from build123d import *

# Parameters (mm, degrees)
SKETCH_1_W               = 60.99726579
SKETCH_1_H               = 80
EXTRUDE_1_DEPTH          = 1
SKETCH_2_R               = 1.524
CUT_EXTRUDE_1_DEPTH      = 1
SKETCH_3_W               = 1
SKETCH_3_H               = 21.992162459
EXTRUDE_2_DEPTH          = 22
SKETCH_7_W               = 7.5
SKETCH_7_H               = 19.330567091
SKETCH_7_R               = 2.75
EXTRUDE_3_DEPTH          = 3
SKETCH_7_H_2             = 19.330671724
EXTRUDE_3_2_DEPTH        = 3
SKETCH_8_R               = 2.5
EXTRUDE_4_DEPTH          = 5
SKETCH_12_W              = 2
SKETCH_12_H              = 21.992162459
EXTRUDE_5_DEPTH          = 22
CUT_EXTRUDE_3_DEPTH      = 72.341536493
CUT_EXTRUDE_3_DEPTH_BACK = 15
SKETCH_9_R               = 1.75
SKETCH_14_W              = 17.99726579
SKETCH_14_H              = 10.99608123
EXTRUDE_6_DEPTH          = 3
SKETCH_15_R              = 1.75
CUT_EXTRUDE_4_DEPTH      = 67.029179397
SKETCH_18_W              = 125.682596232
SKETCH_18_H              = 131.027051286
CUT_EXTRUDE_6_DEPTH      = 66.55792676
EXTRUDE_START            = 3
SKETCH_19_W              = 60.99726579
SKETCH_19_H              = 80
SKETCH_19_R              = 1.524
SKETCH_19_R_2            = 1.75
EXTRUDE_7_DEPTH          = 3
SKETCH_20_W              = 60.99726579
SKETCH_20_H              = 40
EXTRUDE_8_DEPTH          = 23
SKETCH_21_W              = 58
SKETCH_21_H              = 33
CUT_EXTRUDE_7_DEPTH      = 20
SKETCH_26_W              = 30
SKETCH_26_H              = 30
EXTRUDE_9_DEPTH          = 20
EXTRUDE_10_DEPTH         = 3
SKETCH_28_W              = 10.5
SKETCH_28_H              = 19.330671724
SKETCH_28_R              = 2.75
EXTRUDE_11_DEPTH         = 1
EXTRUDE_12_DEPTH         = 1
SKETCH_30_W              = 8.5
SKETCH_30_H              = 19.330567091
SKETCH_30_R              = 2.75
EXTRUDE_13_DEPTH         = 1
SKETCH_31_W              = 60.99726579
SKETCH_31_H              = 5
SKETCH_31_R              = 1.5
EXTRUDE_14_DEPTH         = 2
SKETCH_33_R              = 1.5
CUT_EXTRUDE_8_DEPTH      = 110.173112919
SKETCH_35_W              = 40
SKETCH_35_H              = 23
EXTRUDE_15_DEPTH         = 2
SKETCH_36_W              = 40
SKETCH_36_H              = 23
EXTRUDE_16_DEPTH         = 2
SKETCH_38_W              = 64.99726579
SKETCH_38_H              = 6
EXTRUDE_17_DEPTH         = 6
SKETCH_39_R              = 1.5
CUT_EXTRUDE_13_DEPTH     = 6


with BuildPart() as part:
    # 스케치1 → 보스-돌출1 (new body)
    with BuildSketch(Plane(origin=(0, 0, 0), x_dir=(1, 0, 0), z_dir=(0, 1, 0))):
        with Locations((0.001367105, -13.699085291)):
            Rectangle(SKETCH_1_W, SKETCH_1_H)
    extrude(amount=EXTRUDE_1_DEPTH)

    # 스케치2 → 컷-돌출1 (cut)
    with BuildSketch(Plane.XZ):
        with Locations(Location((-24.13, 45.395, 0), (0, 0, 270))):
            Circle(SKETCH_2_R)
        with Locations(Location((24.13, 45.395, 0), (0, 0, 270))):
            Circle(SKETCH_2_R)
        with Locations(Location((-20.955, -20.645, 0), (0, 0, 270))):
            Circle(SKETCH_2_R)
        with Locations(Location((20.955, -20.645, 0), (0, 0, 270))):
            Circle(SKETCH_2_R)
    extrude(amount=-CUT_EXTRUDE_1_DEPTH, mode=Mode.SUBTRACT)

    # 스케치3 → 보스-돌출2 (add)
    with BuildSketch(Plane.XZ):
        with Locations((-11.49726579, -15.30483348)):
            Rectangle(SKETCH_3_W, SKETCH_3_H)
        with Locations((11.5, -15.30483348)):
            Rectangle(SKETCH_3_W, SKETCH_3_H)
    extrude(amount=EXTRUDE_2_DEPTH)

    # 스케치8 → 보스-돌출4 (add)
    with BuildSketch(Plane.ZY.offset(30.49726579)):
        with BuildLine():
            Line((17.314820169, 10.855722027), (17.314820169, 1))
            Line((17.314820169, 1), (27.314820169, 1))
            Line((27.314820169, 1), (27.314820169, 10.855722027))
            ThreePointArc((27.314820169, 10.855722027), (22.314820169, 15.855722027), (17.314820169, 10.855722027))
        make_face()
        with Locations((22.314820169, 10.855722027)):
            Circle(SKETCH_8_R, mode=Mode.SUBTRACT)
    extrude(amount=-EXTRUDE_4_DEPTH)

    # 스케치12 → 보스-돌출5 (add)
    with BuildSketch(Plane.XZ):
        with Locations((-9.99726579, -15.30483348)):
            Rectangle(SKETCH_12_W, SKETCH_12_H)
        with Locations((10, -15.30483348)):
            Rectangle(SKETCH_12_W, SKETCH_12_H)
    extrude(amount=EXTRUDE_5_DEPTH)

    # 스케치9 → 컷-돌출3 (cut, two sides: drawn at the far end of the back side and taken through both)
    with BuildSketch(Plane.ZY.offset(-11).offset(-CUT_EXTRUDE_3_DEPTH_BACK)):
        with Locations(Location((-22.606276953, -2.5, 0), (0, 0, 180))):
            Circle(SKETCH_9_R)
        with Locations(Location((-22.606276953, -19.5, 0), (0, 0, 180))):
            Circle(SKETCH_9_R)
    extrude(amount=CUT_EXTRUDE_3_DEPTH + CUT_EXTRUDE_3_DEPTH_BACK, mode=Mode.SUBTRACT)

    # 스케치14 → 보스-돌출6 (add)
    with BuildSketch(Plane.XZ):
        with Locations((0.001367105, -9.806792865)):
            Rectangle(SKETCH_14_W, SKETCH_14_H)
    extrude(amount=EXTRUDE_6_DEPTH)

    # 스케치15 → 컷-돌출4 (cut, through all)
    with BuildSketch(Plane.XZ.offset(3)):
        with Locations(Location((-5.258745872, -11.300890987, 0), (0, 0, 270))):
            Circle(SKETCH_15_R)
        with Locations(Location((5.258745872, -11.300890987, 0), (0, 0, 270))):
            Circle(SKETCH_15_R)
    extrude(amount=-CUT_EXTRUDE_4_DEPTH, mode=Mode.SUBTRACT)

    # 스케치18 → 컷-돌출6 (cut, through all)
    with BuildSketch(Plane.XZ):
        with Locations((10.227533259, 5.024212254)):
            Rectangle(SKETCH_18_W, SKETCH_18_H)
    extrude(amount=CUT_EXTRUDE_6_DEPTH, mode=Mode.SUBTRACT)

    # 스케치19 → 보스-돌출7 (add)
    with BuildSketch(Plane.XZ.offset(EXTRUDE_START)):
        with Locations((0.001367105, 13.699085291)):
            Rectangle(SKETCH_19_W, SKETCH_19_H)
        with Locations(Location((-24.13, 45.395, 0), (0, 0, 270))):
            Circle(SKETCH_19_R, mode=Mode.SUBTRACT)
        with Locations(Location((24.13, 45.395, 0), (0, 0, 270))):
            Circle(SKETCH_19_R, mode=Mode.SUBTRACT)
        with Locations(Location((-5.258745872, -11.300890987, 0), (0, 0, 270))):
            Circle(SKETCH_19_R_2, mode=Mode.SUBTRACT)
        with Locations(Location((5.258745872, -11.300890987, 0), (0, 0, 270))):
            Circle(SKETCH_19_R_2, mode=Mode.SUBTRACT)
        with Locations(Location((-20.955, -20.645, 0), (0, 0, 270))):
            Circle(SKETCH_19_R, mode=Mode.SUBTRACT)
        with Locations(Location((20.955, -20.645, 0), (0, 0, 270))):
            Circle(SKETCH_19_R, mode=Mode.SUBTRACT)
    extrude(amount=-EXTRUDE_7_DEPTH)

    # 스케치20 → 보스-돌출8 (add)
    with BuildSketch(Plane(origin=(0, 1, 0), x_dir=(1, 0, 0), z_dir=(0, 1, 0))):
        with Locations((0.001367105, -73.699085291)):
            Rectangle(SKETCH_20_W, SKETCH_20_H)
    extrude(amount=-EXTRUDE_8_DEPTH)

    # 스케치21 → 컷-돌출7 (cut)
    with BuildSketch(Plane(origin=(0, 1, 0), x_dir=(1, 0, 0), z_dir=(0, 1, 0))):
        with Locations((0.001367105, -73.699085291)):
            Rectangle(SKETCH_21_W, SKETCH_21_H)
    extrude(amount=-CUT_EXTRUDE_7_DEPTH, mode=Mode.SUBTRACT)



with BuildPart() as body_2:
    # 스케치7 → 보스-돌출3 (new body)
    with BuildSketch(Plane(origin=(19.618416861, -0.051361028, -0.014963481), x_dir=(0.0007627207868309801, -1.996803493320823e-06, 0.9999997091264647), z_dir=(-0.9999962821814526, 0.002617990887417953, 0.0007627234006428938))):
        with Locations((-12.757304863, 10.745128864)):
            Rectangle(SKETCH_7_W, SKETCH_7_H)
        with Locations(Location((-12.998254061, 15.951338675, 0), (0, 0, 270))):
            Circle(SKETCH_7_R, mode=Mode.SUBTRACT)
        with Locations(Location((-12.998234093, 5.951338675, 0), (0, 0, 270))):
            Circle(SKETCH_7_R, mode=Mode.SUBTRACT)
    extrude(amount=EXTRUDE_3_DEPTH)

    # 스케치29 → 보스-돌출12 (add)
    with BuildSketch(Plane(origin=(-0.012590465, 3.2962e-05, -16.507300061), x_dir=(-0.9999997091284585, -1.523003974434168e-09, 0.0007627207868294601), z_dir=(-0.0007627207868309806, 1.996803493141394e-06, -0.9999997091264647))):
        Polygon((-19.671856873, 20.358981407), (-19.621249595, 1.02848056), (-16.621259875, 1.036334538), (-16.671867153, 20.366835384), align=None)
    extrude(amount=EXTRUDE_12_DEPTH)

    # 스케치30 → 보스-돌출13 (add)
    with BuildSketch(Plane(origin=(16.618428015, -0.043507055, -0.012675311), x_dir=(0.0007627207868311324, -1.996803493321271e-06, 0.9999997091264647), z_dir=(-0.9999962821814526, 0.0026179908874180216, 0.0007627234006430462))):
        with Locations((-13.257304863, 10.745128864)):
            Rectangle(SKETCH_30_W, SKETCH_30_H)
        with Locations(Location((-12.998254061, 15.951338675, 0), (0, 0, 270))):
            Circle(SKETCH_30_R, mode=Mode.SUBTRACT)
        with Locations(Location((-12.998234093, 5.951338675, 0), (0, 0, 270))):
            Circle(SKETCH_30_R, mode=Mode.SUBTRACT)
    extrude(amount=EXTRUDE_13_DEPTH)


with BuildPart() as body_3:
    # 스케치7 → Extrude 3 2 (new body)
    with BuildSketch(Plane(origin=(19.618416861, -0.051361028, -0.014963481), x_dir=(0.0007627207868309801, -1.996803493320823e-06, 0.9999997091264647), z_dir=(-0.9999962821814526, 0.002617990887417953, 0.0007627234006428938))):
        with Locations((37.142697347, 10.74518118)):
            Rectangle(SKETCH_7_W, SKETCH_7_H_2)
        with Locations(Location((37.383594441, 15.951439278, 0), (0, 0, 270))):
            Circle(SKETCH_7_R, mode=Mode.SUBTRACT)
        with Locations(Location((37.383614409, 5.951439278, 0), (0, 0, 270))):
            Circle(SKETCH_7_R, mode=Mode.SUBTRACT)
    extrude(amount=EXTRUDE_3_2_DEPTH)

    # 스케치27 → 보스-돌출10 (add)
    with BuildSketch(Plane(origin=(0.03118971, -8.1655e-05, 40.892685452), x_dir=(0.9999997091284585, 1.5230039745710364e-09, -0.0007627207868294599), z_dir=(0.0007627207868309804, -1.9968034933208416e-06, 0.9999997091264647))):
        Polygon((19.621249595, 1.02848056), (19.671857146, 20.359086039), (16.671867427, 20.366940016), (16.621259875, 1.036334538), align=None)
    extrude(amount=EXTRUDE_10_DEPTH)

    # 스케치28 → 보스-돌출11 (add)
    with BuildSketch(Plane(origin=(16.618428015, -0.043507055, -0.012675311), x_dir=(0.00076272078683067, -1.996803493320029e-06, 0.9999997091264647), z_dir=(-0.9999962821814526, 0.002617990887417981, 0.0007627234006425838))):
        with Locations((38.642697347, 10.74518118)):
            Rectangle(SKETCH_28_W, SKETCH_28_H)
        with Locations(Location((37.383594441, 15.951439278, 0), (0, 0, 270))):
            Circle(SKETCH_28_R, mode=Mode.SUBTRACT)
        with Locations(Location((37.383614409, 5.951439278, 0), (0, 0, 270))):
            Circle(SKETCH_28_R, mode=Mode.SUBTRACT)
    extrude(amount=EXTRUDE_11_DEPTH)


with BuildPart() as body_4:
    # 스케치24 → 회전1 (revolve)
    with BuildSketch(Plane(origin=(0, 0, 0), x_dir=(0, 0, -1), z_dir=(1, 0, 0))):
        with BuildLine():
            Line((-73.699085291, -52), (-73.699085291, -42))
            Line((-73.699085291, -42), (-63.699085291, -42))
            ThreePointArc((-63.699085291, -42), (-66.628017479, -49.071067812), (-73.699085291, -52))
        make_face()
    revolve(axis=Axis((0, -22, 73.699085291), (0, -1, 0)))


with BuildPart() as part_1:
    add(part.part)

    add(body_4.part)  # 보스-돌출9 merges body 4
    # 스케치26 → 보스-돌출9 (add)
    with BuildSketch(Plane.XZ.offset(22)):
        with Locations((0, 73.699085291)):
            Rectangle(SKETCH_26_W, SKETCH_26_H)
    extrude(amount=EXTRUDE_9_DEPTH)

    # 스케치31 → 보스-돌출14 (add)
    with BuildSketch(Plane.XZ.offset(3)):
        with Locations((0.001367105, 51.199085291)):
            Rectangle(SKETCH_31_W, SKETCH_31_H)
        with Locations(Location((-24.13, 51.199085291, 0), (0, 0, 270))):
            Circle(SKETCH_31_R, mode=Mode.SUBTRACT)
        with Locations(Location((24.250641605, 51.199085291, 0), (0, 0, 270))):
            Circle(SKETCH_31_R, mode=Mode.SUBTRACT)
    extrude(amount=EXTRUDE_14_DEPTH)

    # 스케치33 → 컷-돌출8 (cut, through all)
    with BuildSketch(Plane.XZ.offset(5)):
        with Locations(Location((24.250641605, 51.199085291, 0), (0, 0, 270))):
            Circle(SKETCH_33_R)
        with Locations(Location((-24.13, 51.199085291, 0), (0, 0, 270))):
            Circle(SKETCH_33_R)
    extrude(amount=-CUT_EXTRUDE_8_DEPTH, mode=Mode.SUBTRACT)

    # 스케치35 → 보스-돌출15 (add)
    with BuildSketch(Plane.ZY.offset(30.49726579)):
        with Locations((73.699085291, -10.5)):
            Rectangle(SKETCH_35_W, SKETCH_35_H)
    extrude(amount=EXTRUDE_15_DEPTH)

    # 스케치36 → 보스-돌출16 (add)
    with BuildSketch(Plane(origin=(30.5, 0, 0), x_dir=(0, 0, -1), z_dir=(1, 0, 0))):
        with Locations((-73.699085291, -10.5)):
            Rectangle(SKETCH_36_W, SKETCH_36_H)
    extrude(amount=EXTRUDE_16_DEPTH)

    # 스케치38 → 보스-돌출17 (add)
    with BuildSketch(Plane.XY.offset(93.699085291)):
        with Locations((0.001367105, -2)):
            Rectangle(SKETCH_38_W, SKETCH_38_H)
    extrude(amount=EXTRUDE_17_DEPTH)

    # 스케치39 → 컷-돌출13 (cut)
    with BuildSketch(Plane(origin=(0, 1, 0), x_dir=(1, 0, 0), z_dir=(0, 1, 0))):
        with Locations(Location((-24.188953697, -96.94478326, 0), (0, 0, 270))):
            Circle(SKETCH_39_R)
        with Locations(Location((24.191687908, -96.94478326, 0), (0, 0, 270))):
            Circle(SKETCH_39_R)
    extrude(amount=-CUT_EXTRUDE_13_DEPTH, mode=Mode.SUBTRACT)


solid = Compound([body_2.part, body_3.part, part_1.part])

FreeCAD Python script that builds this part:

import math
import FreeCAD as App
import Part
import Sketcher
from FreeCAD import Vector
Q = App.Units.Quantity


def add_polygon(sketch, points):
    """Adds a closed chain of lines whose ends are joined by coincident constraints."""
    first, n = sketch.GeometryCount, len(points)
    for a, b in zip(points, points[1:] + points[:1]):
        sketch.addGeometry(Part.LineSegment(App.Vector(*a, 0), App.Vector(*b, 0)), False)
    for i in range(n):
        sketch.addConstraint(Sketcher.Constraint("Coincident", first + i, 2, first + (i + 1) % n, 1))

doc = App.newDocument("Part")
body = doc.addObject("PartDesign::Body", "Body")

# Sketch on XZ plane
sketch1 = doc.addObject("Sketcher::SketchObject", "Sketch")
body.addObject(sketch1)
sketch1.AttachmentSupport = (doc.XZ_Plane, [""])
sketch1.MapMode = "FlatFace"
add_polygon(sketch1, [(-30, -26), (-30, 54), (30, 54), (30, -26)])  # lines 0-3
sketch1.addConstraint([
    Sketcher.Constraint("Vertical", 0),
    Sketcher.Constraint("Horizontal", 1),
    Sketcher.Constraint("Vertical", 2),
    Sketcher.Constraint("Horizontal", 3),
    Sketcher.Constraint("DistanceY", 0, 1, 0, 2, 80.0),
    Sketcher.Constraint("DistanceX", -1, 1, 1, 2, 30.5),
    Sketcher.Constraint("DistanceX", 1, 1, 1, 2, 60.997266),
    Sketcher.Constraint("DistanceY", -1, 1, 0, 2, 53.699085),
])
pad1 = doc.addObject("PartDesign::Pad", "Pad")
body.addObject(pad1)
pad1.Profile = sketch1
pad1.Length = 1
pad1.Reversed = True

# Sketch on XZ plane
sketch2 = doc.addObject("Sketcher::SketchObject", "Sketch001")
body.addObject(sketch2)
sketch2.AttachmentSupport = (doc.XZ_Plane, [""])
sketch2.MapMode = "FlatFace"
sketch2.addGeometry([
    Part.Circle(Vector(-24.1, 45.4, 0), Vector(0, 0, 1), 1.5),
    Part.Circle(Vector(24.1, 45.4, 0), Vector(0, 0, 1), 1.5),
    Part.Circle(Vector(-21, -20.6, 0), Vector(0, 0, 1), 1.5),
    Part.Circle(Vector(21, -20.6, 0), Vector(0, 0, 1), 1.5),
], False)
sketch2.addConstraint([
    Sketcher.Constraint("Equal", 0, 1),
    Sketcher.Constraint("Equal", 1, 2),
    Sketcher.Constraint("Equal", 2, 3),
    Sketcher.Constraint("Symmetric", 0, 3, 1, 3, -2),
    Sketcher.Constraint("Symmetric", 2, 3, 3, 3, -2),
    Sketcher.Constraint("Diameter", 0, 3.048),
    Sketcher.Constraint("DistanceX", 0, 3, -1, 1, 24.13),
    Sketcher.Constraint("DistanceY", 2, 3, 0, 3, 66.04),
    Sketcher.Constraint("DistanceX", 2, 3, 3, 3, 41.91),
    Sketcher.Constraint("DistanceY", -1, 1, 0, 3, 45.395),
])
pocket1 = doc.addObject("PartDesign::Pocket", "Pocket")
body.addObject(pocket1)
pocket1.Profile = sketch2
pocket1.Length = 1

# Sketch on XZ plane
sketch3 = doc.addObject("Sketcher::SketchObject", "Sketch002")
body.addObject(sketch3)
sketch3.AttachmentSupport = (doc.XZ_Plane, [""])
sketch3.MapMode = "FlatFace"
add_polygon(sketch3, [(-12, -4.3), (-12, -26.3), (-11, -26.3), (-11, -4.3)])  # lines 0-3
add_polygon(sketch3, [(11, -4.3), (11, -26.3), (12, -26.3), (12, -4.3)])  # lines 4-7
sketch3.addConstraint([
    Sketcher.Constraint("Vertical", 0),
    Sketcher.Constraint("Horizontal", 1),
    Sketcher.Constraint("Vertical", 2),
    Sketcher.Constraint("Horizontal", 3),
    Sketcher.Constraint("Vertical", 4),
    Sketcher.Constraint("Horizontal", 5),
    Sketcher.Constraint("Vertical", 6),
    Sketcher.Constraint("Horizontal", 7),
    Sketcher.Constraint("Horizontal", 1, 2, 4, 2),
    Sketcher.Constraint("Horizontal", 3, 2, 6, 2),
    Sketcher.Constraint("Equal", 3, 5),
    Sketcher.Constraint("DistanceX", 1, 1, 1, 2, 1.0),
    Sketcher.Constraint("DistanceX", -1, 1, 4, 2, 11.0),
    Sketcher.Constraint("DistanceY", 0, 2, 0, 1, 21.992162),
    Sketcher.Constraint("DistanceX", 0, 2, -1, 1, 11.997266),
    Sketcher.Constraint("DistanceY", 0, 2, -1, 1, 26.300915),
])
pad2 = doc.addObject("PartDesign::Pad", "Pad001")
body.addObject(pad2)
pad2.Profile = sketch3
pad2.Length = 22

# Sketch on YZ plane
sketch4 = doc.addObject("Sketcher::SketchObject", "Sketch003")
body.addObject(sketch4)
sketch4.AttachmentSupport = (doc.YZ_Plane, [""])
sketch4.MapMode = "FlatFace"
sketch4.AttachmentOffset = App.Placement(Vector(0, 0, -30.497266), App.Rotation())
sketch4.addGeometry([
    Part.LineSegment(Vector(10.9, 17.3, 0), Vector(1, 17.3, 0)),  # 0
    Part.LineSegment(Vector(1, 17.3, 0), Vector(1, 27.3, 0)),  # 1
    Part.LineSegment(Vector(1, 27.3, 0), Vector(10.9, 27.3, 0)),  # 2
    Part.ArcOfCircle(Part.Circle(Vector(10.9, 22.3, 0), Vector(0, 0, 1), 5), math.radians(-90), math.radians(90)),  # 3
    Part.Circle(Vector(10.9, 22.3, 0), Vector(0, 0, 1), 2.5),  # 4
], False)
sketch4.addConstraint([
    Sketcher.Constraint("Coincident", 0, 2, 1, 1),
    Sketcher.Constraint("Coincident", 1, 2, 2, 1),
    Sketcher.Constraint("Tangent", 2, 2, 3, 2),
    Sketcher.Constraint("Tangent", 3, 1, 0, 1),
    Sketcher.Constraint("Horizontal", 0),
    Sketcher.Constraint("Vertical", 1),
    Sketcher.Constraint("Horizontal", 2),
    Sketcher.Constraint("Coincident", 4, 3, 3, 3),
    Sketcher.Constraint("Diameter", 4, 5.0),
    Sketcher.Constraint("Radius", 3, 5.0),
    Sketcher.Constraint("DistanceX", -1, 1, 0, 2, 1.0),
    Sketcher.Constraint("DistanceX", 0, 2, 0, 1, 9.855722),
    Sketcher.Constraint("DistanceY", -1, 1, 3, 3, 22.31482),
])
pad3 = doc.addObject("PartDesign::Pad", "Pad002")
body.addObject(pad3)
pad3.Profile = sketch4
pad3.Length = 5

# Sketch on XZ plane
sketch5 = doc.addObject("Sketcher::SketchObject", "Sketch004")
body.addObject(sketch5)
sketch5.AttachmentSupport = (doc.XZ_Plane, [""])
sketch5.MapMode = "FlatFace"
add_polygon(sketch5, [(-11, -4.3), (-11, -26.3), (-9, -26.3), (-9, -4.3)])  # lines 0-3
add_polygon(sketch5, [(9, -4.3), (9, -26.3), (11, -26.3), (11, -4.3)])  # lines 4-7
sketch5.addConstraint([
    Sketcher.Constraint("Vertical", 0),
    Sketcher.Constraint("Horizontal", 1),
    Sketcher.Constraint("Vertical", 2),
    Sketcher.Constraint("Horizontal", 3),
    Sketcher.Constraint("Vertical", 4),
    Sketcher.Constraint("Horizontal", 5),
    Sketcher.Constraint("Vertical", 6),
    Sketcher.Constraint("Horizontal", 7),
    Sketcher.Constraint("Horizontal", 1, 2, 4, 2),
    Sketcher.Constraint("Horizontal", 3, 2, 6, 2),
    Sketcher.Constraint("Equal", 3, 5),
    Sketcher.Constraint("DistanceX", 1, 1, 1, 2, 2.0),
    Sketcher.Constraint("DistanceX", -1, 1, 4, 2, 9.0),
    Sketcher.Constraint("DistanceY", 0, 2, 0, 1, 21.992162),
    Sketcher.Constraint("DistanceX", 0, 2, -1, 1, 10.997266),
    Sketcher.Constraint("DistanceY", 0, 2, -1, 1, 26.300915),
])
pad4 = doc.addObject("PartDesign::Pad", "Pad003")
body.addObject(pad4)
pad4.Profile = sketch5
pad4.Length = 22

# Sketch on YZ plane
sketch6 = doc.addObject("Sketcher::SketchObject", "Sketch005")
body.addObject(sketch6)
sketch6.AttachmentSupport = (doc.YZ_Plane, [""])
sketch6.MapMode = "FlatFace"
sketch6.AttachmentOffset = App.Placement(Vector(0, 0, 11), App.Rotation())
sketch6.addGeometry([
    Part.Circle(Vector(-2.5, -22.6, 0), Vector(0, 0, 1), 1.8),
    Part.Circle(Vector(-19.5, -22.6, 0), Vector(0, 0, 1), 1.8),
], False)
sketch6.addConstraint([
    Sketcher.Constraint("Equal", 0, 1),
    Sketcher.Constraint("Horizontal", 0, 3, 1, 3),
    Sketcher.Constraint("Diameter", 0, 3.5),
    Sketcher.Constraint("DistanceX", 1, 3, 0, 3, 17.0),
    Sketcher.Constraint("DistanceX", 0, 3, -1, 1, 2.5),
    Sketcher.Constraint("DistanceY", 0, 3, -1, 1, 22.606277),
])
pocket2 = doc.addObject("PartDesign::Pocket", "Pocket001")
body.addObject(pocket2)
pocket2.Profile = sketch6
pocket2.Type = "ThroughAll"
pocket2.Midplane = True

# Sketch on XZ plane
sketch7 = doc.addObject("Sketcher::SketchObject", "Sketch006")
body.addObject(sketch7)
sketch7.AttachmentSupport = (doc.XZ_Plane, [""])
sketch7.MapMode = "FlatFace"
add_polygon(sketch7, [(-9, -4), (-9, -15), (9, -15), (9, -4)])  # lines 0-3
sketch7.addConstraint([
    Sketcher.Constraint("Vertical", 0),
    Sketcher.Constraint("Horizontal", 1),
    Sketcher.Constraint("Vertical", 2),
    Sketcher.Constraint("Horizontal", 3),
    Sketcher.Constraint("DistanceX", -1, 1, 1, 2, 9.0),
    Sketcher.Constraint("DistanceY", 0, 2, 0, 1, 10.996081),
    Sketcher.Constraint("DistanceX", 1, 1, 1, 2, 17.997266),
    Sketcher.Constraint("DistanceY", 0, 2, -1, 1, 15.304833),
])
pad5 = doc.addObject("PartDesign::Pad", "Pad004")
body.addObject(pad5)
pad5.Profile = sketch7
pad5.Length = 3

# Sketch on XZ plane
sketch8 = doc.addObject("Sketcher::SketchObject", "Sketch007")
body.addObject(sketch8)
sketch8.AttachmentSupport = (doc.XZ_Plane, [""])
sketch8.MapMode = "FlatFace"
sketch8.AttachmentOffset = App.Placement(Vector(0, 0, 3), App.Rotation())
sketch8.addGeometry([
    Part.Circle(Vector(-5.3, -11.3, 0), Vector(0, 0, 1), 1.8),
    Part.Circle(Vector(5.3, -11.3, 0), Vector(0, 0, 1), 1.8),
], False)
sketch8.addConstraint([
    Sketcher.Constraint("Equal", 0, 1),
    Sketcher.Constraint("Symmetric", 0, 3, 1, 3, -2),
    Sketcher.Constraint("Diameter", 0, 3.5),
    Sketcher.Constraint("DistanceY", 0, 3, -1, 1, 11.300891),
    Sketcher.Constraint("DistanceX", 0, 3, 1, 3, 10.517492),
])
pocket3 = doc.addObject("PartDesign::Pocket", "Pocket002")
body.addObject(pocket3)
pocket3.Profile = sketch8
pocket3.Type = "ThroughAll"

# Sketch on XZ plane
sketch9 = doc.addObject("Sketcher::SketchObject", "Sketch008")
body.addObject(sketch9)
sketch9.AttachmentSupport = (doc.XZ_Plane, [""])
sketch9.MapMode = "FlatFace"
add_polygon(sketch9, [(-53, 71), (-53, -60), (73, -60), (73, 71)])  # lines 0-3
sketch9.addConstraint([
    Sketcher.Constraint("Vertical", 0),
    Sketcher.Constraint("Horizontal", 1),
    Sketcher.Constraint("Vertical", 2),
    Sketcher.Constraint("Horizontal", 3),
    Sketcher.Constraint("DistanceY", 0, 2, 0, 1, 131.027051),
    Sketcher.Constraint("DistanceX", 1, 1, 1, 2, 125.682596),
    Sketcher.Constraint("DistanceX", -1, 1, 1, 2, 73.068831),
    Sketcher.Constraint("DistanceY", 0, 2, -1, 1, 60.489313),
])
pocket4 = doc.addObject("PartDesign::Pocket", "Pocket003")
body.addObject(pocket4)
pocket4.Profile = sketch9
pocket4.Type = "ThroughAll"
pocket4.Reversed = True

# Sketch on XZ plane
sketch10 = doc.addObject("Sketcher::SketchObject", "Sketch009")
body.addObject(sketch10)
sketch10.AttachmentSupport = (doc.XZ_Plane, [""])
sketch10.MapMode = "FlatFace"
sketch10.AttachmentOffset = App.Placement(Vector(0, 0, 3), App.Rotation())
add_polygon(sketch10, [(-30.5, 53.7), (-30.5, -26.3), (30.5, -26.3), (30.5, 53.7)])  # lines 0-3
sketch10.addGeometry(Part.Circle(Vector(-21, -20.6, 0), Vector(0, 0, 1), 1.5), False)  # 4
sketch10.addGeometry(Part.Circle(Vector(-5.3, -11.3, 0), Vector(0, 0, 1), 1.8), False)  # 5
sketch10.addGeometry(Part.Circle(Vector(5.3, -11.3, 0), Vector(0, 0, 1), 1.8), False)  # 6
sketch10.addGeometry(Part.Circle(Vector(21, -20.6, 0), Vector(0, 0, 1), 1.5), False)  # 7
sketch10.addGeometry(Part.Circle(Vector(-24.1, 45.4, 0), Vector(0, 0, 1), 1.5), False)  # 8
sketch10.addGeometry(Part.Circle(Vector(24.1, 45.4, 0), Vector(0, 0, 1), 1.5), False)  # 9
sketch10.addConstraint([
    Sketcher.Constraint("Vertical", 0),
    Sketcher.Constraint("Horizontal", 1),
    Sketcher.Constraint("Vertical", 2),
    Sketcher.Constraint("Horizontal", 3),
    Sketcher.Constraint("Equal", 5, 6),
    Sketcher.Constraint("Equal", 4, 7),
    Sketcher.Constraint("Equal", 7, 8),
    Sketcher.Constraint("Equal", 8, 9),
    Sketcher.Constraint("Symmetric", 5, 3, 6, 3, -2),
    Sketcher.Constraint("Symmetric", 4, 3, 7, 3, -2),
    Sketcher.Constraint("Symmetric", 8, 3, 9, 3, -2),
    Sketcher.Constraint("Diameter", 5, 3.5),
    Sketcher.Constraint("DistanceY", 0, 2, 0, 1, 80.0),
    Sketcher.Constraint("Diameter", 4, 3.048),
    Sketcher.Constraint("DistanceX", -1, 1, 1, 2, 30.5),
    Sketcher.Constraint("DistanceX", 8, 3, -1, 1, 24.13),
    Sketcher.Constraint("DistanceX", 4, 3, 7, 3, 41.91),
    Sketcher.Constraint("DistanceY", 4, 3, 8, 3, 66.04),
    Sketcher.Constraint("DistanceY", 4, 3, -1, 1, 20.645),
    Sketcher.Constraint("DistanceX", 1, 1, 1, 2, 60.997266),
    Sketcher.Constraint("DistanceY", 5, 3, -1, 1, 11.300891),
    Sketcher.Constraint("DistanceX", 5, 3, 6, 3, 10.517492),
    Sketcher.Constraint("DistanceY", 0, 2, -1, 1, 26.300915),
])
pad6 = doc.addObject("PartDesign::Pad", "Pad005")
body.addObject(pad6)
pad6.Profile = sketch10
pad6.Length = 3
pad6.Reversed = True

# Sketch on XZ plane
sketch11 = doc.addObject("Sketcher::SketchObject", "Sketch010")
body.addObject(sketch11)
sketch11.AttachmentSupport = (doc.XZ_Plane, [""])
sketch11.MapMode = "FlatFace"
sketch11.AttachmentOffset = App.Placement(Vector(0, 0, -1), App.Rotation())
add_polygon(sketch11, [(-30, 54), (-30, 94), (30, 94), (30, 54)])  # lines 0-3
sketch11.addConstraint([
    Sketcher.Constraint("Vertical", 0),
    Sketcher.Constraint("Horizontal", 1),
    Sketcher.Constraint("Vertical", 2),
    Sketcher.Constraint("Horizontal", 3),
    Sketcher.Constraint("DistanceY", 0, 1, 0, 2, 40.0),
    Sketcher.Constraint("DistanceX", -1, 1, 1, 2, 30.5),
    Sketcher.Constraint("DistanceX", 1, 1, 1, 2, 60.997266),
    Sketcher.Constraint("DistanceY", -1, 1, 0, 2, 93.699085),
])
pad7 = doc.addObject("PartDesign::Pad", "Pad006")
body.addObject(pad7)
pad7.Profile = sketch11
pad7.Length = 23

# Sketch on XZ plane
sketch12 = doc.addObject("Sketcher::SketchObject", "Sketch011")
body.addObject(sketch12)
sketch12.AttachmentSupport = (doc.XZ_Plane, [""])
sketch12.MapMode = "FlatFace"
sketch12.AttachmentOffset = App.Placement(Vector(0, 0, -1), App.Rotation())
add_polygon(sketch12, [(-29, 57), (-29, 90), (29, 90), (29, 57)])  # lines 0-3
sketch12.addConstraint([
    Sketcher.Constraint("Vertical", 0),
    Sketcher.Constraint("Horizontal", 1),
    Sketcher.Constraint("Vertical", 2),
    Sketcher.Constraint("Horizontal", 3),
    Sketcher.Constraint("DistanceX", 1, 1, 1, 2, 58.0),
    Sketcher.Constraint("DistanceY", 0, 1, 0, 2, 33.0),
    Sketcher.Constraint("DistanceX", 0, 2, -1, 1, 28.998633),
    Sketcher.Constraint("DistanceY", -1, 1, 0, 2, 90.199085),
])
pocket5 = doc.addObject("PartDesign::Pocket", "Pocket004")
body.addObject(pocket5)
pocket5.Profile = sketch12
pocket5.Length = 20
pocket5.Reversed = True
body2 = doc.addObject("PartDesign::Body", "Body001")

# Sketch on an angled plane
sketch13 = doc.addObject("Sketcher::SketchObject", "Sketch012")
body2.addObject(sketch13)
sketch13.Placement = App.Placement(Vector(19.618417, -0.051361, -0.014963), App.Rotation(Vector(0.000762721, -0.000001997, 0.999999709), Vector(0.002617992, 0.999996573, 0), Vector(-0.999996282, 0.002617991, 0.000762723), "ZXY"))
add_polygon(sketch13, [(-16.5, 20.4), (-16.5, 1.1), (-9, 1.1), (-9, 20.4)])  # lines 0-3
sketch13.addGeometry(Part.Circle(Vector(-13, 6, 0), Vector(0, 0, 1), 2.8), False)  # 4
sketch13.addGeometry(Part.Circle(Vector(-13, 16, 0), Vector(0, 0, 1), 2.8), False)  # 5
sketch13.addConstraint([
    Sketcher.Constraint("Vertical", 0),
    Sketcher.Constraint("Horizontal", 1),
    Sketcher.Constraint("Vertical", 2),
    Sketcher.Constraint("Horizontal", 3),
    Sketcher.Constraint("Equal", 4, 5),
    Sketcher.Constraint("Diameter", 4, 5.5),
    Sketcher.Constraint("DistanceX", 1, 1, 1, 2, 7.5),
    Sketcher.Constraint("DistanceY", 4, 3, 5, 3, 10.0),
    Sketcher.Constraint("DistanceY", 0, 2, 0, 1, 19.330567),
    Sketcher.Constraint("DistanceY", -1, 1, 4, 3, 5.951339),
    Sketcher.Constraint("DistanceX", 0, 2, 4, 3, 3.509071),
    Sketcher.Constraint("DistanceX", 0, 2, 5, 3, 3.509051),
    Sketcher.Constraint("DistanceX", 4, 3, -1, 1, 12.998234),
    Sketcher.Constraint("DistanceY", -1, 1, 0, 2, 1.079845),
])
pad8 = doc.addObject("PartDesign::Pad", "Pad007")
body2.addObject(pad8)
pad8.Profile = sketch13
pad8.Length = 3

# Sketch on an angled plane
sketch14 = doc.addObject("Sketcher::SketchObject", "Sketch013")
body2.addObject(sketch14)
sketch14.Placement = App.Placement(Vector(-0.01259, 0.000033, -16.5073), App.Rotation(Vector(-0.999999709, -0.000000002, 0.000762721), Vector(0, 1, 0.000001997), Vector(-0.000762721, 0.000001997, -0.999999709), "ZXY"))
add_polygon(sketch14, [(-19.7, 20.4), (-19.6, 1), (-16.6, 1), (-16.7, 20.4)])  # lines 0-3
sketch14.addConstraint([
    Sketcher.Constraint("Perpendicular", 0, 1),
    Sketcher.Constraint("Perpendicular", 1, 2),
    Sketcher.Constraint("Perpendicular", 2, 3),
    Sketcher.Constraint("Distance", 1, 3.0),
    Sketcher.Constraint("Angle", 0, Q("-89.85 deg")),
    Sketcher.Constraint("DistanceY", 1, 2, 2, 2, 19.330501),
    Sketcher.Constraint("DistanceX", 0, 2, -1, 1, 19.62125),
    Sketcher.Constraint("DistanceY", -1, 1, 0, 2, 1.028481),
])
pad9 = doc.addObject("PartDesign::Pad", "Pad008")
body2.addObject(pad9)
pad9.Profile = sketch14
pad9.Length = 1

# Sketch on an angled plane
sketch15 = doc.addObject("Sketcher::SketchObject", "Sketch014")
body2.addObject(sketch15)
sketch15.Placement = App.Placement(Vector(16.618428, -0.043507, -0.012675), App.Rotation(Vector(0.000762721, -0.000001997, 0.999999709), Vector(0.002617992, 0.999996573, 0), Vector(-0.999996282, 0.002617991, 0.000762723), "ZXY"))
add_polygon(sketch15, [(-17.5, 20.4), (-17.5, 1.1), (-9, 1.1), (-9, 20.4)])  # lines 0-3
sketch15.addGeometry(Part.Circle(Vector(-13, 6, 0), Vector(0, 0, 1), 2.8), False)  # 4
sketch15.addGeometry(Part.Circle(Vector(-13, 16, 0), Vector(0, 0, 1), 2.8), False)  # 5
sketch15.addConstraint([
    Sketcher.Constraint("Vertical", 0),
    Sketcher.Constraint("Horizontal", 1),
    Sketcher.Constraint("Vertical", 2),
    Sketcher.Constraint("Horizontal", 3),
    Sketcher.Constraint("Equal", 4, 5),
    Sketcher.Constraint("Diameter", 4, 5.5),
    Sketcher.Constraint("DistanceX", 1, 1, 1, 2, 8.5),
    Sketcher.Constraint("DistanceY", 4, 3, 5, 3, 10.0),
    Sketcher.Constraint("DistanceY", 0, 2, 0, 1, 19.330567),
    Sketcher.Constraint("DistanceY", -1, 1, 4, 3, 5.951339),
    Sketcher.Constraint("DistanceX", 0, 2, 4, 3, 4.509071),
    Sketcher.Constraint("DistanceX", 0, 2, 5, 3, 4.509051),
    Sketcher.Constraint("DistanceX", 4, 3, -1, 1, 12.998234),
    Sketcher.Constraint("DistanceY", -1, 1, 0, 2, 1.079845),
])
pad10 = doc.addObject("PartDesign::Pad", "Pad009")
body2.addObject(pad10)
pad10.Profile = sketch15
pad10.Length = 1
body3 = doc.addObject("PartDesign::Body", "Body002")

# Sketch on an angled plane
sketch16 = doc.addObject("Sketcher::SketchObject", "Sketch015")
body3.addObject(sketch16)
sketch16.Placement = App.Placement(Vector(19.618417, -0.051361, -0.014963), App.Rotation(Vector(0.000762721, -0.000001997, 0.999999709), Vector(0.002617992, 0.999996573, 0), Vector(-0.999996282, 0.002617991, 0.000762723), "ZXY"))
add_polygon(sketch16, [(33.4, 20.4), (33.4, 1.1), (40.9, 1.1), (40.9, 20.4)])  # lines 0-3
sketch16.addGeometry(Part.Circle(Vector(37.4, 6, 0), Vector(0, 0, 1), 2.8), False)  # 4
sketch16.addGeometry(Part.Circle(Vector(37.4, 16, 0), Vector(0, 0, 1), 2.8), False)  # 5
sketch16.addConstraint([
    Sketcher.Constraint("Vertical", 0),
    Sketcher.Constraint("Horizontal", 1),
    Sketcher.Constraint("Vertical", 2),
    Sketcher.Constraint("Horizontal", 3),
    Sketcher.Constraint("Equal", 4, 5),
    Sketcher.Constraint("Diameter", 4, 5.5),
    Sketcher.Constraint("DistanceX", 1, 1, 1, 2, 7.5),
    Sketcher.Constraint("DistanceY", 4, 3, 5, 3, 10.0),
    Sketcher.Constraint("DistanceY", 0, 2, 0, 1, 19.330672),
    Sketcher.Constraint("DistanceY", -1, 1, 4, 3, 5.951439),
    Sketcher.Constraint("DistanceX", -1, 1, 4, 3, 37.383614),
    Sketcher.Constraint("DistanceX", -1, 1, 5, 3, 37.383594),
    Sketcher.Constraint("DistanceX", -1, 1, 0, 2, 33.392697),
    Sketcher.Constraint("DistanceY", -1, 1, 0, 2, 1.079845),
])
pad11 = doc.addObject("PartDesign::Pad", "Pad010")
body3.addObject(pad11)
pad11.Profile = sketch16
pad11.Length = 3

# Sketch on an angled plane
sketch17 = doc.addObject("Sketcher::SketchObject", "Sketch016")
body3.addObject(sketch17)
sketch17.Placement = App.Placement(Vector(0.03119, -0.000082, 40.892685), App.Rotation(Vector(0.999999709, 0.000000002, -0.000762721), Vector(0, 1, 0.000001997), Vector(0.000762721, -0.000001997, 0.999999709), "ZXY"))
add_polygon(sketch17, [(19.6, 1), (19.7, 20.4), (16.7, 20.4), (16.6, 1)])  # lines 0-3
sketch17.addConstraint([
    Sketcher.Constraint("Perpendicular", 0, 1),
    Sketcher.Constraint("Perpendicular", 1, 2),
    Sketcher.Constraint("Perpendicular", 2, 3),
    Sketcher.Constraint("Distance", 1, 3.0),
    Sketcher.Constraint("Angle", 0, Q("89.85 deg")),
    Sketcher.Constraint("Distance", 0, 19.330672),
    Sketcher.Constraint("DistanceY", -1, 1, 1, 2, 20.36694),
    Sketcher.Constraint("DistanceX", -1, 1, 2, 2, 16.62126),
])
pad12 = doc.addObject("PartDesign::Pad", "Pad011")
body3.addObject(pad12)
pad12.Profile = sketch17
pad12.Length = 3

# Sketch on an angled plane
sketch18 = doc.addObject("Sketcher::SketchObject", "Sketch017")
body3.addObject(sketch18)
sketch18.Placement = App.Placement(Vector(16.618428, -0.043507, -0.012675), App.Rotation(Vector(0.000762721, -0.000001997, 0.999999709), Vector(0.002617992, 0.999996573, 0), Vector(-0.999996282, 0.002617991, 0.000762723), "ZXY"))
add_polygon(sketch18, [(33.4, 20.4), (33.4, 1.1), (43.9, 1.1), (43.9, 20.4)])  # lines 0-3
sketch18.addGeometry(Part.Circle(Vector(37.4, 6, 0), Vector(0, 0, 1), 2.8), False)  # 4
sketch18.addGeometry(Part.Circle(Vector(37.4, 16, 0), Vector(0, 0, 1), 2.8), False)  # 5
sketch18.addConstraint([
    Sketcher.Constraint("Vertical", 0),
    Sketcher.Constraint("Horizontal", 1),
    Sketcher.Constraint("Vertical", 2),
    Sketcher.Constraint("Horizontal", 3),
    Sketcher.Constraint("Equal", 4, 5),
    Sketcher.Constraint("Diameter", 4, 5.5),
    Sketcher.Constraint("DistanceX", 1, 1, 1, 2, 10.5),
    Sketcher.Constraint("DistanceY", 4, 3, 5, 3, 10.0),
    Sketcher.Constraint("DistanceY", 0, 2, 0, 1, 19.330672),
    Sketcher.Constraint("DistanceY", -1, 1, 4, 3, 5.951439),
    Sketcher.Constraint("DistanceX", -1, 1, 4, 3, 37.383614),
    Sketcher.Constraint("DistanceX", -1, 1, 5, 3, 37.383594),
    Sketcher.Constraint("DistanceX", -1, 1, 0, 2, 33.392697),
    Sketcher.Constraint("DistanceY", -1, 1, 0, 2, 1.079845),
])
pad13 = doc.addObject("PartDesign::Pad", "Pad012")
body3.addObject(pad13)
pad13.Profile = sketch18
pad13.Length = 1
body4 = doc.addObject("PartDesign::Body", "Body003")

# Sketch on YZ plane
sketch19 = doc.addObject("Sketcher::SketchObject", "Sketch018")
body4.addObject(sketch19)
sketch19.AttachmentSupport = (doc.getObject("YZ_Plane003"), [""])
sketch19.MapMode = "FlatFace"
sketch19.addGeometry([
    Part.LineSegment(Vector(-42, 74, 0), Vector(-52, 74, 0)),
    Part.ArcOfCircle(Part.Circle(Vector(-42, 74, 0), Vector(0, 0, 1), 10), math.radians(180), math.radians(270)),
    Part.LineSegment(Vector(-42, 64, 0), Vector(-42, 74, 0)),
], False)
sketch19.addGeometry(Part.LineSegment(Vector(-42, 74, 0), Vector(-52, 74, 0)), True)  # axis
sketch19.addConstraint([
    Sketcher.Constraint("Coincident", 0, 2, 1, 1),
    Sketcher.Constraint("Coincident", 1, 2, 2, 1),
    Sketcher.Constraint("Coincident", 2, 2, 0, 1),
    Sketcher.Constraint("Horizontal", 0),
    Sketcher.Constraint("Vertical", 2),
    Sketcher.Constraint("Horizontal", 3),
    Sketcher.Constraint("Coincident", 2, 2, 1, 3),
    Sketcher.Constraint("Coincident", 3, 1, 1, 3),
    Sketcher.Constraint("Equal", 0, 3),
    Sketcher.Constraint("Radius", 1, 10.0),
    Sketcher.Constraint("DistanceX", 1, 3, -1, 1, 42.0),
    Sketcher.Constraint("DistanceY", -1, 1, 1, 3, 73.699085),
])
revolution = doc.addObject("PartDesign::Revolution", "Revolution")
body4.addObject(revolution)
revolution.Profile = sketch19
revolution.ReferenceAxis = (sketch19, ["Axis0"])
revolution.Angle = 360
body.AllowCompound = True
doc.recompute()

boolean = doc.addObject("PartDesign::Boolean", "Boolean")
body.addObject(boolean)
boolean.Type = "Fuse"
boolean.addObjects([body4])

# Sketch on XZ plane
sketch20 = doc.addObject("Sketcher::SketchObject", "Sketch019")
body.addObject(sketch20)
sketch20.AttachmentSupport = (doc.XZ_Plane, [""])
sketch20.MapMode = "FlatFace"
sketch20.AttachmentOffset = App.Placement(Vector(0, 0, 22), App.Rotation())
add_polygon(sketch20, [(-15, 89), (-15, 59), (15, 59), (15, 89)])  # lines 0-3
sketch20.addConstraint([
    Sketcher.Constraint("Vertical", 0),
    Sketcher.Constraint("Horizontal", 1),
    Sketcher.Constraint("Vertical", 2),
    Sketcher.Constraint("Horizontal", 3),
    Sketcher.Constraint("Equal", 3, 0),
    Sketcher.Constraint("DistanceX", 1, 1, 1, 2, 30.0),
    Sketcher.Constraint("DistanceX", 0, 2, -1, 1, 15.0),
    Sketcher.Constraint("DistanceY", -1, 1, 0, 2, 58.699085),
])
pad14 = doc.addObject("PartDesign::Pad", "Pad013")
body.addObject(pad14)
pad14.Profile = sketch20
pad14.Length = 20

# Sketch on XZ plane
sketch21 = doc.addObject("Sketcher::SketchObject", "Sketch020")
body.addObject(sketch21)
sketch21.AttachmentSupport = (doc.XZ_Plane, [""])
sketch21.MapMode = "FlatFace"
sketch21.AttachmentOffset = App.Placement(Vector(0, 0, 3), App.Rotation())
add_polygon(sketch21, [(-30.5, 53.7), (-30.5, 48.7), (30.5, 48.7), (30.5, 53.7)])  # lines 0-3
sketch21.addGeometry(Part.Circle(Vector(-24.1, 51.2, 0), Vector(0, 0, 1), 1.5), False)  # 4
sketch21.addGeometry(Part.Circle(Vector(24.3, 51.2, 0), Vector(0, 0, 1), 1.5), False)  # 5
sketch21.addConstraint([
    Sketcher.Constraint("Vertical", 0),
    Sketcher.Constraint("Horizontal", 1),
    Sketcher.Constraint("Vertical", 2),
    Sketcher.Constraint("Horizontal", 3),
    Sketcher.Constraint("Equal", 4, 5),
    Sketcher.Constraint("Horizontal", 4, 3, 5, 3),
    Sketcher.Constraint("Diameter", 4, 3.0),
    Sketcher.Constraint("DistanceY", 0, 2, 0, 1, 5.0),
    Sketcher.Constraint("DistanceX", -1, 1, 1, 2, 30.5),
    Sketcher.Constraint("DistanceY", 0, 2, 4, 3, 2.5),
    Sketcher.Constraint("DistanceX", 4, 3, -1, 1, 24.13),
    Sketcher.Constraint("DistanceX", 1, 1, 1, 2, 60.997266),
    Sketcher.Constraint("DistanceX", -1, 1, 5, 3, 24.250642),
    Sketcher.Constraint("DistanceY", -1, 1, 4, 3, 51.199085),
])
pad15 = doc.addObject("PartDesign::Pad", "Pad014")
body.addObject(pad15)
pad15.Profile = sketch21
pad15.Length = 2

# Sketch on XZ plane
sketch22 = doc.addObject("Sketcher::SketchObject", "Sketch021")
body.addObject(sketch22)
sketch22.AttachmentSupport = (doc.XZ_Plane, [""])
sketch22.MapMode = "FlatFace"
sketch22.AttachmentOffset = App.Placement(Vector(0, 0, 5), App.Rotation())
sketch22.addGeometry([
    Part.Circle(Vector(24.3, 51.2, 0), Vector(0, 0, 1), 1.5),
    Part.Circle(Vector(-24.1, 51.2, 0), Vector(0, 0, 1), 1.5),
], False)
sketch22.addConstraint([
    Sketcher.Constraint("Equal", 0, 1),
    Sketcher.Constraint("Horizontal", 0, 3, 1, 3),
    Sketcher.Constraint("Diameter", 0, 3.0),
    Sketcher.Constraint("DistanceX", 1, 3, -1, 1, 24.13),
    Sketcher.Constraint("DistanceX", -1, 1, 0, 3, 24.250642),
    Sketcher.Constraint("DistanceY", -1, 1, 0, 3, 51.199085),
])
pocket6 = doc.addObject("PartDesign::Pocket", "Pocket005")
body.addObject(pocket6)
pocket6.Profile = sketch22
pocket6.Type = "ThroughAll"

# Sketch on YZ plane
sketch23 = doc.addObject("Sketcher::SketchObject", "Sketch022")
body.addObject(sketch23)
sketch23.AttachmentSupport = (doc.YZ_Plane, [""])
sketch23.MapMode = "FlatFace"
sketch23.AttachmentOffset = App.Placement(Vector(0, 0, -30.497266), App.Rotation())
add_polygon(sketch23, [(1, 54), (-22, 54), (-22, 94), (1, 94)])  # lines 0-3
sketch23.addConstraint([
    Sketcher.Constraint("Horizontal", 0),
    Sketcher.Constraint("Vertical", 1),
    Sketcher.Constraint("Horizontal", 2),
    Sketcher.Constraint("Vertical", 3),
    Sketcher.Constraint("DistanceX", 0, 2, 0, 1, 23.0),
    Sketcher.Constraint("DistanceY", 1, 1, 1, 2, 40.0),
    Sketcher.Constraint("DistanceX", 0, 2, -1, 1, 22.0),
    Sketcher.Constraint("DistanceY", -1, 1, 0, 2, 53.699085),
])
pad16 = doc.addObject("PartDesign::Pad", "Pad015")
body.addObject(pad16)
pad16.Profile = sketch23
pad16.Length = 2
pad16.Reversed = True

# Sketch on YZ plane
sketch24 = doc.addObject("Sketcher::SketchObject", "Sketch023")
body.addObject(sketch24)
sketch24.AttachmentSupport = (doc.YZ_Plane, [""])
sketch24.MapMode = "FlatFace"
sketch24.AttachmentOffset = App.Placement(Vector(0, 0, 30.5), App.Rotation())
add_polygon(sketch24, [(1, 94), (-22, 94), (-22, 54), (1, 54)])  # lines 0-3
sketch24.addConstraint([
    Sketcher.Constraint("Horizontal", 0),
    Sketcher.Constraint("Vertical", 1),
    Sketcher.Constraint("Horizontal", 2),
    Sketcher.Constraint("Vertical", 3),
    Sketcher.Constraint("DistanceX", 0, 2, 0, 1, 23.0),
    Sketcher.Constraint("DistanceY", 1, 2, 1, 1, 40.0),
    Sketcher.Constraint("DistanceX", 0, 2, -1, 1, 22.0),
    Sketcher.Constraint("DistanceY", -1, 1, 0, 2, 93.699085),
])
pad17 = doc.addObject("PartDesign::Pad", "Pad016")
body.addObject(pad17)
pad17.Profile = sketch24
pad17.Length = 2

# Sketch on XY plane
sketch25 = doc.addObject("Sketcher::SketchObject", "Sketch024")
body.addObject(sketch25)
sketch25.AttachmentSupport = (doc.XY_Plane, [""])
sketch25.MapMode = "FlatFace"
sketch25.AttachmentOffset = App.Placement(Vector(0, 0, 93.699085), App.Rotation())
add_polygon(sketch25, [(-32, 1), (-32, -5), (32, -5), (32, 1)])  # lines 0-3
sketch25.addConstraint([
    Sketcher.Constraint("Vertical", 0),
    Sketcher.Constraint("Horizontal", 1),
    Sketcher.Constraint("Vertical", 2),
    Sketcher.Constraint("Horizontal", 3),
    Sketcher.Constraint("DistanceY", 0, 2, 0, 1, 6.0),
    Sketcher.Constraint("DistanceY", 0, 2, -1, 1, 5.0),
    Sketcher.Constraint("DistanceX", -1, 1, 1, 2, 32.5),
    Sketcher.Constraint("DistanceX", 1, 1, 1, 2, 64.997266),
])
pad18 = doc.addObject("PartDesign::Pad", "Pad017")
body.addObject(pad18)
pad18.Profile = sketch25
pad18.Length = 6

# Sketch on XZ plane
sketch26 = doc.addObject("Sketcher::SketchObject", "Sketch025")
body.addObject(sketch26)
sketch26.AttachmentSupport = (doc.XZ_Plane, [""])
sketch26.MapMode = "FlatFace"
sketch26.AttachmentOffset = App.Placement(Vector(0, 0, -1), App.Rotation())
sketch26.addGeometry([
    Part.Circle(Vector(-24.2, 96.9, 0), Vector(0, 0, 1), 1.5),
    Part.Circle(Vector(24.2, 96.9, 0), Vector(0, 0, 1), 1.5),
], False)
sketch26.addConstraint([
    Sketcher.Constraint("Equal", 0, 1),
    Sketcher.Constraint("Horizontal", 0, 3, 1, 3),
    Sketcher.Constraint("Diameter", 0, 3.0),
    Sketcher.Constraint("DistanceX", 0, 3, 1, 3, 48.380642),
    Sketcher.Constraint("DistanceX", 0, 3, -1, 1, 24.188954),
    Sketcher.Constraint("DistanceY", -1, 1, 0, 3, 96.944783),
])
pocket7 = doc.addObject("PartDesign::Pocket", "Pocket006")
body.addObject(pocket7)
pocket7.Profile = sketch26
pocket7.Length = 6
pocket7.Reversed = True

doc.recompute()
